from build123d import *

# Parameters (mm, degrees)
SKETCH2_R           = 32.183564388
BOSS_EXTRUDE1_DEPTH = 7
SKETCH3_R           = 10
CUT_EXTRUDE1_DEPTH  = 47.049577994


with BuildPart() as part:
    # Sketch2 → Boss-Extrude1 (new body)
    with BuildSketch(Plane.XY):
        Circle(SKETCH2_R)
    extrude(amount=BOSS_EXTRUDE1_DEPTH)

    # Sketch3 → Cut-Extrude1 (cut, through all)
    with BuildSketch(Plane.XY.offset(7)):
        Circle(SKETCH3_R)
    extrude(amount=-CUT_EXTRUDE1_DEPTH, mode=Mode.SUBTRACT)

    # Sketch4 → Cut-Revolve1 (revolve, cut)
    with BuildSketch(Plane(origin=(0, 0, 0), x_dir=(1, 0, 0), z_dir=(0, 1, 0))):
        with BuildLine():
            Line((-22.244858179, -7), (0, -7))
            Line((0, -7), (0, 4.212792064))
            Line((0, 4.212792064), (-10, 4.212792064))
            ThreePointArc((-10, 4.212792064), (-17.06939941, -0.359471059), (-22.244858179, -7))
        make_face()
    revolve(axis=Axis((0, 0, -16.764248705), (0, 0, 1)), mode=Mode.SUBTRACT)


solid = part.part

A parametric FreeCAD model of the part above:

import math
import FreeCAD as App
import Part
import Sketcher
from FreeCAD import Vector

doc = App.newDocument("Part")
body = doc.addObject("PartDesign::Body", "Body")

# Sketch on XY plane
sketch1 = body.newObject("Sketcher::SketchObject", "Sketch")
sketch1.AttachmentSupport = (doc.getObject("XY_Plane"), [""])
sketch1.MapMode = "FlatFace"
sketch1.addGeometry(Part.Circle(Vector(0, 0, 0), Vector(0, 0, 1), 32), False)
sketch1.addConstraint(Sketcher.Constraint("Coincident", 0, 3, -1, 1))
sketch1.addConstraint(Sketcher.Constraint("Diameter", 0, 64.367129))
pad1 = body.newObject("PartDesign::Pad", "Pad")
pad1.Profile = sketch1
pad1.Length = 7

# Sketch on XY plane
sketch2 = body.newObject("Sketcher::SketchObject", "Sketch001")
sketch2.AttachmentSupport = (doc.getObject("XY_Plane"), [""])
sketch2.MapMode = "FlatFace"
sketch2.AttachmentOffset = App.Placement(Vector(0, 0, 7), App.Rotation())
sketch2.addGeometry(Part.Circle(Vector(0, 0, 0), Vector(0, 0, 1), 10), False)
sketch2.addConstraint(Sketcher.Constraint("Coincident", 0, 3, -1, 1))
sketch2.addConstraint(Sketcher.Constraint("Diameter", 0, 20.0))
pocket1 = body.newObject("PartDesign::Pocket", "Pocket")
pocket1.Profile = sketch2
pocket1.Type = "ThroughAll"

# Sketch on XZ plane
sketch3 = body.newObject("Sketcher::SketchObject", "Sketch002")
sketch3.AttachmentSupport = (doc.getObject("XZ_Plane"), [""])
sketch3.MapMode = "FlatFace"
sketch3.addGeometry(Part.LineSegment(Vector(-22, 7, 0), Vector(0, 7, 0)), False)
sketch3.addGeometry(Part.LineSegment(Vector(0, 7, 0), Vector(0, -4, 0)), False)
sketch3.addGeometry(Part.LineSegment(Vector(0, -4, 0), Vector(-10, -4, 0)), False)
sketch3.addGeometry(Part.ArcOfCircle(Part.Circle(Vector(0, 19, 0), Vector(0, 0, 1), 25), math.radians(-152), math.radians(-113)), False)
sketch3.addConstraint(Sketcher.Constraint("Coincident", 0, 2, 1, 1))
sketch3.addConstraint(Sketcher.Constraint("Coincident", 1, 2, 2, 1))
sketch3.addConstraint(Sketcher.Constraint("Coincident", 2, 2, 3, 2))
sketch3.addConstraint(Sketcher.Constraint("Coincident", 3, 1, 0, 1))
sketch3.addConstraint(Sketcher.Constraint("Horizontal", 0))
sketch3.addConstraint(Sketcher.Constraint("Vertical", 1))
sketch3.addConstraint(Sketcher.Constraint("Horizontal", 2))
sketch3.addConstraint(Sketcher.Constraint("PointOnObject", 3, 3, -2))
sketch3.addConstraint(Sketcher.Constraint("PointOnObject", 0, 2, -2))
sketch3.addConstraint(Sketcher.Constraint("DistanceX", 2, 2, 2, 1, 10.0))
sketch3.addConstraint(Sketcher.Constraint("DistanceY", -1, 1, 3, 3, 19.0))
sketch3.addConstraint(Sketcher.Constraint("DistanceY", -1, 1, 0, 2, 7.0))
sketch3.addConstraint(Sketcher.Constraint("Radius", 3, 25.27516))
groove = body.newObject("PartDesign::Groove", "Groove")
groove.Profile = sketch3
groove.ReferenceAxis = (sketch3, ["V_Axis"])
groove.Angle = 360

doc.recompute()
